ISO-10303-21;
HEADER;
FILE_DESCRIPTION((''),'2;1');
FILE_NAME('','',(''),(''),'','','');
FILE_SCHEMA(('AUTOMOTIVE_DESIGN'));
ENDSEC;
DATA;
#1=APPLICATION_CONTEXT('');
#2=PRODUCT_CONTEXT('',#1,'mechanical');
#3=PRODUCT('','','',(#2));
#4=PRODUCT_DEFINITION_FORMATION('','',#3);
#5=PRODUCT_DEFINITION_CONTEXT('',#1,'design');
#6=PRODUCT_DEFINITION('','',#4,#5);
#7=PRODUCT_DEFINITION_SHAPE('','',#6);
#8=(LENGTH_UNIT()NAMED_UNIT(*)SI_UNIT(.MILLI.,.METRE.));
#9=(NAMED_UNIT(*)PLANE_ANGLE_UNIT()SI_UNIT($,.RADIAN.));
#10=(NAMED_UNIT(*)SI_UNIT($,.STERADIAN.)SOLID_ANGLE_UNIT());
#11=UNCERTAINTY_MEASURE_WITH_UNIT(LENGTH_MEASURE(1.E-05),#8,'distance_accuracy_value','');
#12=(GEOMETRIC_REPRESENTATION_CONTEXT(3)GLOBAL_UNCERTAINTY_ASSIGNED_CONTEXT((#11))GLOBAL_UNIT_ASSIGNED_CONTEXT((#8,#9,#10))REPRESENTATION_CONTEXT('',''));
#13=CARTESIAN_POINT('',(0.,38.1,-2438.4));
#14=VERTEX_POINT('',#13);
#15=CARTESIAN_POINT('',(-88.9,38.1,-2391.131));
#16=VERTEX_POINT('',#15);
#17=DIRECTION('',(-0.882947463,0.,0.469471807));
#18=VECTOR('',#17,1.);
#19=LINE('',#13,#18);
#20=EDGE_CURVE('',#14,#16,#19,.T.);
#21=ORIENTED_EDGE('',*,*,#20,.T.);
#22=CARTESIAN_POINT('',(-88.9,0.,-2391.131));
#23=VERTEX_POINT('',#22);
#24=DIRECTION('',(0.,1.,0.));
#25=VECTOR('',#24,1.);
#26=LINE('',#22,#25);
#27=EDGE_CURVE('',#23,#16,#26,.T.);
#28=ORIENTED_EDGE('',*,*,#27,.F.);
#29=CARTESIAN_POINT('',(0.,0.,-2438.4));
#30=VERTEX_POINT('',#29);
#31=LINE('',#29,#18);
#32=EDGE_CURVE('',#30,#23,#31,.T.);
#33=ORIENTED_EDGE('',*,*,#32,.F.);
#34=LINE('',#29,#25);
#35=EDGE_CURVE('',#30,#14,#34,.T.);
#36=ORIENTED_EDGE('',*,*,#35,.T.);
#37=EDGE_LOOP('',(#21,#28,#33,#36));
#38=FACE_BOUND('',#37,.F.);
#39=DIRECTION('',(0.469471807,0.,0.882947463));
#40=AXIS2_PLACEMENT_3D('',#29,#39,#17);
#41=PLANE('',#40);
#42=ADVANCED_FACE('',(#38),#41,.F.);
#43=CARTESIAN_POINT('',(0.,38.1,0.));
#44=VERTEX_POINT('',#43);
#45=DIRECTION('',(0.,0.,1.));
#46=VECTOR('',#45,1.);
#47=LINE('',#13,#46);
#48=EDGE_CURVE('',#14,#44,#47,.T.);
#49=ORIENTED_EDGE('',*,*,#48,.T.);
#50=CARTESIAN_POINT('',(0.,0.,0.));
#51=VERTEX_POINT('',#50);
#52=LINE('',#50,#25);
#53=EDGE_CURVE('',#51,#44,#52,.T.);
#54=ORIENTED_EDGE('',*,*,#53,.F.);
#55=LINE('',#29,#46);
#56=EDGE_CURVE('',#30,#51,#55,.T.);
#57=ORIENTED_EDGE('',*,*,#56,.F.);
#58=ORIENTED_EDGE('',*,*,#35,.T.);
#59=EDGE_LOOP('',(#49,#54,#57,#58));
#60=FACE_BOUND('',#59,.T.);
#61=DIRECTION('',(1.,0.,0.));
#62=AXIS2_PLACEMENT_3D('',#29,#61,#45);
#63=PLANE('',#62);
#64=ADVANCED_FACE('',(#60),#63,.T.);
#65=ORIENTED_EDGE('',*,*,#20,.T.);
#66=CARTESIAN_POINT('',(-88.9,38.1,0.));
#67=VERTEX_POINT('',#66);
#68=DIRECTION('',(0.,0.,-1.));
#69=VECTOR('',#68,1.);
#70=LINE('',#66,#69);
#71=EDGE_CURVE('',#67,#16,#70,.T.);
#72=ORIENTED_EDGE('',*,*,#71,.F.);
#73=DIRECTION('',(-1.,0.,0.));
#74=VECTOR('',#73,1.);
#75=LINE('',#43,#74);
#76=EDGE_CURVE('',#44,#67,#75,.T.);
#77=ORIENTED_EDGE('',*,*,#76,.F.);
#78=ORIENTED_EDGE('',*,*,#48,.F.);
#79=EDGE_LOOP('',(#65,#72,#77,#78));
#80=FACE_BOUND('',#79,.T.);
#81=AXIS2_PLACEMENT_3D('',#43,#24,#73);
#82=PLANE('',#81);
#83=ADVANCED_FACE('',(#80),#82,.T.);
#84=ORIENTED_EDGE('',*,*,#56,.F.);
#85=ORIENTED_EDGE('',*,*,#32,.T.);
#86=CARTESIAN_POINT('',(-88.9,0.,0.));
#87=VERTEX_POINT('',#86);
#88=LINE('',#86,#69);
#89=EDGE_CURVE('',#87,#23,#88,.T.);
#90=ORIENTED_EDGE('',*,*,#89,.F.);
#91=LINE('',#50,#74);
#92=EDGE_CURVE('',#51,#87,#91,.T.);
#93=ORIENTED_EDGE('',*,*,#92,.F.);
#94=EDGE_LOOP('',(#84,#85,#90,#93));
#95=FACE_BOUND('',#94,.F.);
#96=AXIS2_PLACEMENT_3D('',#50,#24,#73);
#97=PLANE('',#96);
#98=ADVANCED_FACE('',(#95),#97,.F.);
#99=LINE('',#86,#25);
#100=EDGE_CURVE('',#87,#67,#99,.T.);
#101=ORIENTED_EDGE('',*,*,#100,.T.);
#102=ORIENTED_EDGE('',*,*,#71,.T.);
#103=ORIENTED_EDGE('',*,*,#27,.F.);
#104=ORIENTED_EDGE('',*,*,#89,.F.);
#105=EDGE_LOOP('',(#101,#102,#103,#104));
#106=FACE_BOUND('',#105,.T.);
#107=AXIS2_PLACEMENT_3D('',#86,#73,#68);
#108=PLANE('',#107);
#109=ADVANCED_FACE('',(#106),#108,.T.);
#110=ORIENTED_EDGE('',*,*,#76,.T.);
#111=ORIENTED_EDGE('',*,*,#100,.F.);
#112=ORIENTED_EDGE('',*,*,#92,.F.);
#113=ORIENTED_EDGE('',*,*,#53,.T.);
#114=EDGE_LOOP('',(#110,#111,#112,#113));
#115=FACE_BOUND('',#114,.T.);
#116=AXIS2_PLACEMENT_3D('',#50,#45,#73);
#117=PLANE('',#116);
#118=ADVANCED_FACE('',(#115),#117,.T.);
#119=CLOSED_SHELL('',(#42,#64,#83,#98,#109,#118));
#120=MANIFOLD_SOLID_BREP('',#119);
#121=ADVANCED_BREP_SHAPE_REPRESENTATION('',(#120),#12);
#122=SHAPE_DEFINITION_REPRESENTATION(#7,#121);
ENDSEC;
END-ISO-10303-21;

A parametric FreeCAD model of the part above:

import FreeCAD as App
import Part
import Sketcher

V = App.Vector
Q = App.Units.Quantity


def add_polygon(sketch, points):
    """Adds a closed chain of lines whose ends are joined by coincident constraints."""
    first, n = sketch.GeometryCount, len(points)
    for a, b in zip(points, points[1:] + points[:1]):
        sketch.addGeometry(Part.LineSegment(App.Vector(*a, 0), App.Vector(*b, 0)), False)
    for i in range(n):
        sketch.addConstraint(Sketcher.Constraint("Coincident", first + i, 2, first + (i + 1) % n, 1))

doc = App.newDocument("Part")
body = doc.addObject("PartDesign::Body", "Body")

# Sketch on XZ plane
sketch1 = doc.addObject("Sketcher::SketchObject", "Sketch")
body.addObject(sketch1)
sketch1.AttachmentSupport = (doc.XZ_Plane, [""])
sketch1.MapMode = "FlatFace"
add_polygon(sketch1, [(-89, 0), (0, 0), (0, -2438), (-89, -2391)])  # lines 0-3
sketch1.addConstraint(Sketcher.Constraint("Horizontal", 0))
sketch1.addConstraint(Sketcher.Constraint("Vertical", 1))
sketch1.addConstraint(Sketcher.Constraint("Vertical", 3))
sketch1.addConstraint(Sketcher.Constraint("Coincident", 0, 2, -1, 1))
sketch1.addConstraint(Sketcher.Constraint("DistanceY", 1, 2, 1, 1, Q("96 in")))
sketch1.addConstraint(Sketcher.Constraint("DistanceX", 0, 1, 0, 2, Q("3.5 in")))
sketch1.addConstraint(Sketcher.Constraint("Angle", 2, Q("152 deg")))
pad1 = doc.addObject("PartDesign::Pad", "Pad")
body.addObject(pad1)
pad1.Profile = sketch1
pad1.Length = Q("1.5 in")
pad1.Reversed = True

doc.recompute()
